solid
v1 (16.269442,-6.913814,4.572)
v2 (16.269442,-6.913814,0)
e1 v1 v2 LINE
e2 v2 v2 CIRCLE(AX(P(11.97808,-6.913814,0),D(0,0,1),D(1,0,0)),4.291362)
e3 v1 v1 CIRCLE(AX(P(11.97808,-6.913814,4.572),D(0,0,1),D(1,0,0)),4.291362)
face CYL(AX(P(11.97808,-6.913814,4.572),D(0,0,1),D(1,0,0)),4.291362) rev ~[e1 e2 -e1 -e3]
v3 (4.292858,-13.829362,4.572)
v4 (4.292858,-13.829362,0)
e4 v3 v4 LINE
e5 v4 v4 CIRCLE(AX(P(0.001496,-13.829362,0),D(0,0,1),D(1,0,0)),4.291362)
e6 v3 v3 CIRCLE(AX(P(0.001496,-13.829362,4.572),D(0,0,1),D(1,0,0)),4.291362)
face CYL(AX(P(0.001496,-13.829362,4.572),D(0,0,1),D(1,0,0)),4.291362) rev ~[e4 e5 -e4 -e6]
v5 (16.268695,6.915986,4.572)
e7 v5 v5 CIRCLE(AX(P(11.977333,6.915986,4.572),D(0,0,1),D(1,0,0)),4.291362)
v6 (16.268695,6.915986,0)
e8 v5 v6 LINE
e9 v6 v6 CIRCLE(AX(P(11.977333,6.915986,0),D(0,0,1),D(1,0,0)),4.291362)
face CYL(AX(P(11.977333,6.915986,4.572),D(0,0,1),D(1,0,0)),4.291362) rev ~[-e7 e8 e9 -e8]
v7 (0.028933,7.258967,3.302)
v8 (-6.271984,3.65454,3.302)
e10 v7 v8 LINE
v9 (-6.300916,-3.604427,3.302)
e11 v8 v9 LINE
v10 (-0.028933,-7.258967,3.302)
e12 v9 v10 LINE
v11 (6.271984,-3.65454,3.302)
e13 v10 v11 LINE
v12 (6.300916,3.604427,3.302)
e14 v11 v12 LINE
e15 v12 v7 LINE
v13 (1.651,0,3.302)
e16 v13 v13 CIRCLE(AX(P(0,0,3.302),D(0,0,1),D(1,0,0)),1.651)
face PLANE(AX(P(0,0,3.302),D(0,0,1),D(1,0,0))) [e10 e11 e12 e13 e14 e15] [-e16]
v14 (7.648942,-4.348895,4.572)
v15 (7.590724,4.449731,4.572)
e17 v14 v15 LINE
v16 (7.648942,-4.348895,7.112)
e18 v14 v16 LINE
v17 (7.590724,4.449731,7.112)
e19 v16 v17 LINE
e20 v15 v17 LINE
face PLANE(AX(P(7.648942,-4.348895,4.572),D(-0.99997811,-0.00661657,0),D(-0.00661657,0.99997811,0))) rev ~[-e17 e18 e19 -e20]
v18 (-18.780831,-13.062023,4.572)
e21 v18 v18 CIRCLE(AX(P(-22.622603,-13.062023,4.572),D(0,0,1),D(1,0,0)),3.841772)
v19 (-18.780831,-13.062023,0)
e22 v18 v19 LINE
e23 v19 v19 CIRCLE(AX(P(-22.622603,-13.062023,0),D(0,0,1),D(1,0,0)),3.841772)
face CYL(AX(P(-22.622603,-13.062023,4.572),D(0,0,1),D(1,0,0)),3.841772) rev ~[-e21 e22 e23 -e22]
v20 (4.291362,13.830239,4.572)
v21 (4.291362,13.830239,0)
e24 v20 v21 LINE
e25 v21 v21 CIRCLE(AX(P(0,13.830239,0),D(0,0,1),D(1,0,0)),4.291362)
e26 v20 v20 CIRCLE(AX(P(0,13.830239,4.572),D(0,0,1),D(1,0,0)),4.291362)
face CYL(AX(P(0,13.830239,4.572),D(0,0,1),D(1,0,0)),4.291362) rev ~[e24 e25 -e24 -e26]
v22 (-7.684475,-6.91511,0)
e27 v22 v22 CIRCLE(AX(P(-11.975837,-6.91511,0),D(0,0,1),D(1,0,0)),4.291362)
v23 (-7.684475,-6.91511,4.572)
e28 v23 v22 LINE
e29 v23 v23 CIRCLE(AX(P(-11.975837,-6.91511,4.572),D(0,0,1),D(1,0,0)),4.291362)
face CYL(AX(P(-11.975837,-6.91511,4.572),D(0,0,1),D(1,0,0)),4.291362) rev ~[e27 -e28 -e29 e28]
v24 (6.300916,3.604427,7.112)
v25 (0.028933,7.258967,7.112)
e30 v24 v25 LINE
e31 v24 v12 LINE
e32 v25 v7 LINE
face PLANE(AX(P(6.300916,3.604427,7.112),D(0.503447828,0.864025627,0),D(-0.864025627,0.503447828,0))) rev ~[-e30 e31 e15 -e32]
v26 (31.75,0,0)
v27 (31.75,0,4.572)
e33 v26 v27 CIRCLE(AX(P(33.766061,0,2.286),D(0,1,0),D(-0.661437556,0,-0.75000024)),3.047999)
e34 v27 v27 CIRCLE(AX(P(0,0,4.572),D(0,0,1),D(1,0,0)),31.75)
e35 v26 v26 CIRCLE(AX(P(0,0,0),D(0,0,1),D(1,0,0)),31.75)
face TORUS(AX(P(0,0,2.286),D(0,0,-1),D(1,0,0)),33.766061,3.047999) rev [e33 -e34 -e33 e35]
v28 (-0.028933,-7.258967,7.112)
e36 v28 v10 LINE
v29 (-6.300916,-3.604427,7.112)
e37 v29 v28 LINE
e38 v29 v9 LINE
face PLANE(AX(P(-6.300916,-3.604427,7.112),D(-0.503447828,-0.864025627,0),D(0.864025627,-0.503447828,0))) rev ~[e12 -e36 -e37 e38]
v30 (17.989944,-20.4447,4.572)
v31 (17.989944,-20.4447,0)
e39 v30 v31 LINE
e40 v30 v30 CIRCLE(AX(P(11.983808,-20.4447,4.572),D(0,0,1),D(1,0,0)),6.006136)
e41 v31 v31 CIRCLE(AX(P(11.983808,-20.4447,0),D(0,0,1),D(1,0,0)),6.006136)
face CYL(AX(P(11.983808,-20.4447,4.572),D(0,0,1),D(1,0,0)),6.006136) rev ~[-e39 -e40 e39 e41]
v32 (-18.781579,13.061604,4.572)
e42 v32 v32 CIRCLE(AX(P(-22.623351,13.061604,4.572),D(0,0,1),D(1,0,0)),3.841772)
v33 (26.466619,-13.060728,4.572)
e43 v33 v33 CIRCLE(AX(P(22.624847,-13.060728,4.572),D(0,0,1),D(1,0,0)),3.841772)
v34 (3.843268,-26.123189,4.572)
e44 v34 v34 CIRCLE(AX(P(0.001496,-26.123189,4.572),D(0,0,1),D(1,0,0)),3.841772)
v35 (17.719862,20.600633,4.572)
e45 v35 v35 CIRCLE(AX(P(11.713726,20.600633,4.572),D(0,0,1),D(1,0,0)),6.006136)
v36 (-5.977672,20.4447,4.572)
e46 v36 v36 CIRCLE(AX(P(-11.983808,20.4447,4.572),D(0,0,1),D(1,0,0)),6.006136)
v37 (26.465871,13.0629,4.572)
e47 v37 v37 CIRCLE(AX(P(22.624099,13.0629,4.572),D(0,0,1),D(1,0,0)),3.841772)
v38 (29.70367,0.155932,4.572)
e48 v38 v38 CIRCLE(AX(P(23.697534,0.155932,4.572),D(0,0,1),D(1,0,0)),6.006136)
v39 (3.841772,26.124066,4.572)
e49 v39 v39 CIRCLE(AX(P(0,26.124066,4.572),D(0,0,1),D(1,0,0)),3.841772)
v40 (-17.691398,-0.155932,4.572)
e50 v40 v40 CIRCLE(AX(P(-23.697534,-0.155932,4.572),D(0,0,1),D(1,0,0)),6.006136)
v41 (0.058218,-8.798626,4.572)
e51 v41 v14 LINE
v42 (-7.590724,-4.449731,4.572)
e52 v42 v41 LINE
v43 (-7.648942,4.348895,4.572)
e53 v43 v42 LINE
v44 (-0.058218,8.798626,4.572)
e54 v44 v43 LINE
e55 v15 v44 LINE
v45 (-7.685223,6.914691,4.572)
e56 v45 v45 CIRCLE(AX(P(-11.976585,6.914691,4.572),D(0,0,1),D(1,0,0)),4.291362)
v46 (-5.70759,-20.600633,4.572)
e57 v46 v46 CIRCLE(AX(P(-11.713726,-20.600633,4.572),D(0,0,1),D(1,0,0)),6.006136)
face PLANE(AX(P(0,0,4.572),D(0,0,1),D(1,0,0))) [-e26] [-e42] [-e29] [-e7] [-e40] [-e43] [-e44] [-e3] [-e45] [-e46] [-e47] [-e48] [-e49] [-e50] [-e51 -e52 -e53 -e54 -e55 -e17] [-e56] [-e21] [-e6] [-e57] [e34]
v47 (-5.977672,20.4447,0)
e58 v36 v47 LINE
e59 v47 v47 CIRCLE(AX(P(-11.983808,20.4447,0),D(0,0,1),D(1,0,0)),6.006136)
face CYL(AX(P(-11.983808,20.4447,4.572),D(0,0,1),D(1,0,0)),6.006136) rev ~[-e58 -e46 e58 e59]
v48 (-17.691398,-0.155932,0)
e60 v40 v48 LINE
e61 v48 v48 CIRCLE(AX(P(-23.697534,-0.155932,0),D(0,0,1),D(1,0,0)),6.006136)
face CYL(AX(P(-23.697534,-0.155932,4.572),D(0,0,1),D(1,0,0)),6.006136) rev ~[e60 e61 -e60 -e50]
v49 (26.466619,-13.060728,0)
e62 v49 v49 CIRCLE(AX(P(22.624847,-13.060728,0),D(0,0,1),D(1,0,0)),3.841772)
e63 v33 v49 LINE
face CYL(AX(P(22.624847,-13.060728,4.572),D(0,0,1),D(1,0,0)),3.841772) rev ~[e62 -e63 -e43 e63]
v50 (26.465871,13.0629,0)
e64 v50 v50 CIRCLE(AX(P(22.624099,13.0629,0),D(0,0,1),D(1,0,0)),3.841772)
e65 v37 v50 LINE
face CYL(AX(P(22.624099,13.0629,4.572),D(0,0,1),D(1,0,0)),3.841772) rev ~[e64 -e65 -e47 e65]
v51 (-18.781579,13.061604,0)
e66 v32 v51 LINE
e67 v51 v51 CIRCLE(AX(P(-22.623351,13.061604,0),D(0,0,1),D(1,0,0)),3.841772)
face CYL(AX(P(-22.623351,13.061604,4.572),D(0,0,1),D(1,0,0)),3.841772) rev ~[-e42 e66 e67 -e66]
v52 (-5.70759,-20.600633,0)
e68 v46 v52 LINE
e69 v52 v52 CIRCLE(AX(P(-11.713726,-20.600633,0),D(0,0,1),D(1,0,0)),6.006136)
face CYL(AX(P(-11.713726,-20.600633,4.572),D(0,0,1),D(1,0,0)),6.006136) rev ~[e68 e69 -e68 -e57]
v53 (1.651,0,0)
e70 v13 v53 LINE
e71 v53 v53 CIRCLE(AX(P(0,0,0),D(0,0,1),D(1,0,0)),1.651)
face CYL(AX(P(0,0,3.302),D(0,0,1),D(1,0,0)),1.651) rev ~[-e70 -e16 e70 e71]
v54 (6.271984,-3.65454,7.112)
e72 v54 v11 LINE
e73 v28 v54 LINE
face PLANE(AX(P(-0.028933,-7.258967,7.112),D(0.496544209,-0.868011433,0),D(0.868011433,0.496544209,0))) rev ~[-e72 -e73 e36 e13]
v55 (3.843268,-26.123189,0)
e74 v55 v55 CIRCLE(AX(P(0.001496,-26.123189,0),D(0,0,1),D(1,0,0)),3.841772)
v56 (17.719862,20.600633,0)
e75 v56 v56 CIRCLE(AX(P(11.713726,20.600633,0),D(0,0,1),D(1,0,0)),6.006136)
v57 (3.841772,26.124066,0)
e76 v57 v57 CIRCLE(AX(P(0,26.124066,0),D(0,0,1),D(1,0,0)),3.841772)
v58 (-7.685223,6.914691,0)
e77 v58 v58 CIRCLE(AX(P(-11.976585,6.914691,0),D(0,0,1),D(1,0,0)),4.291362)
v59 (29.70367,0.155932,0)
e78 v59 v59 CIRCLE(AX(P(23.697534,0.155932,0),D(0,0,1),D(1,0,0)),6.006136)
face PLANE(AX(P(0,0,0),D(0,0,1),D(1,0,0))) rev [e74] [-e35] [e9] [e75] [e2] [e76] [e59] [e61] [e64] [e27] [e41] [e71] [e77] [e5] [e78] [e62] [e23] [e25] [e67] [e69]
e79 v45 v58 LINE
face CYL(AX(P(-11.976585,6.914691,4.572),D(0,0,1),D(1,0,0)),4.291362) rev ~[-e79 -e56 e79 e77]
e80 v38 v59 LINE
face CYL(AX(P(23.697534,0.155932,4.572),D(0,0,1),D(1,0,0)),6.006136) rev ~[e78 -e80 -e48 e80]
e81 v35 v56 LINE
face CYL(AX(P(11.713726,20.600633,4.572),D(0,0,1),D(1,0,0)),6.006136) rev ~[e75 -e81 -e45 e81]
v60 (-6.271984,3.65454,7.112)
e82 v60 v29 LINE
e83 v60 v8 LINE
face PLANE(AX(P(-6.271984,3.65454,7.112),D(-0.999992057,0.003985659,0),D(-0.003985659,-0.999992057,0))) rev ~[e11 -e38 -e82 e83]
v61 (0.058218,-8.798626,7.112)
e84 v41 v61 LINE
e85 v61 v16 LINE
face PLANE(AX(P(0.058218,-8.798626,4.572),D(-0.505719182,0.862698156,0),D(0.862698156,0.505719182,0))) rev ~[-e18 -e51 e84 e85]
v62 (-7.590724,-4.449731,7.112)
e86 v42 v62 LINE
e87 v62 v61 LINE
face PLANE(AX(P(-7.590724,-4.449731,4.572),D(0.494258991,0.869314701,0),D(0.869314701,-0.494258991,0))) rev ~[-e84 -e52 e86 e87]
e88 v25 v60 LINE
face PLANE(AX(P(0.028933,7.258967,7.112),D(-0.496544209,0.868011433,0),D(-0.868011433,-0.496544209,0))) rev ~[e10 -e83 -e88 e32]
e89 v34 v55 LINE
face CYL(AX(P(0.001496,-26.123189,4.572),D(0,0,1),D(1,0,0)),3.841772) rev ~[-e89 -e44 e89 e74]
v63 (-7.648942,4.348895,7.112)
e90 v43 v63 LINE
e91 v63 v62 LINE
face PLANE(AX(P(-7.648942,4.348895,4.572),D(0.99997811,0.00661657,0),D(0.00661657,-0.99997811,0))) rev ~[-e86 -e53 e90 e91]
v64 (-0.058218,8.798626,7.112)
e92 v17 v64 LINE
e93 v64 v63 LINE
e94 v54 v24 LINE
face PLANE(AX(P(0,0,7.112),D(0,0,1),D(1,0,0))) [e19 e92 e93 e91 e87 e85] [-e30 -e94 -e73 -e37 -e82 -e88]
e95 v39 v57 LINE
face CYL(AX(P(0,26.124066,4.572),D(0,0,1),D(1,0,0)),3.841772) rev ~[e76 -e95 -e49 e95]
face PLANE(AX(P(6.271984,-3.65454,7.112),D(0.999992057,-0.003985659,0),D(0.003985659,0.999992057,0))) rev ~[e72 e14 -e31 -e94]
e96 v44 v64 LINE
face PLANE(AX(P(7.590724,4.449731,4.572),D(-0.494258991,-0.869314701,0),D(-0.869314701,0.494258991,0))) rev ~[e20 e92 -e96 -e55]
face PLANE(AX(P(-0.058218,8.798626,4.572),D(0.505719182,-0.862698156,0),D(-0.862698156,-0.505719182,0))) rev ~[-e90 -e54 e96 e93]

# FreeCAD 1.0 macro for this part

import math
import FreeCAD as App
import Part
import Sketcher

V = App.Vector
Q = App.Units.Quantity

doc = App.newDocument("Part")
params = doc.addObject("Spreadsheet::Sheet", "Params")
for row, (alias, value) in enumerate([
    ("sketch1_radius", "0.12 in"),
    ("sketch1_width", "1.25 in"),
    ("sketch1_height", "0.18 in"),
    ("revolution_angle", "360 deg"),
    ("pad1_length", "0.1 in"),
    ("pocket1_length", "1 in"),
    ("pocket2_length", "0.15 in"),
    ("sketch5_diameter", "0.13 in"),
    ("pocket3_length", "1 in"),
], start=1):
    params.set(f"A{row}", alias)
    params.set(f"B{row}", "=" + value)
    params.setAlias(f"B{row}", alias)

body = doc.addObject("PartDesign::Body", "Body")

# Sketch on XZ plane
sketch1 = doc.addObject("Sketcher::SketchObject", "Sketch")
body.addObject(sketch1)
sketch1.AttachmentSupport = (doc.XZ_Plane, [""])
sketch1.MapMode = "FlatFace"
sketch1.addGeometry(Part.LineSegment(V(0, 4.6, 0), V(0, 0, 0)), False)
sketch1.addGeometry(Part.LineSegment(V(0, 0, 0), V(31.8, 0, 0)), False)
sketch1.addGeometry(Part.ArcOfCircle(Part.Circle(V(33.8, 2.3, 0), V(0, 0, 1), 3), math.radians(131), math.radians(229)), False)
sketch1.addGeometry(Part.LineSegment(V(31.8, 4.6, 0), V(0, 4.6, 0)), False)
sketch1.addConstraint(Sketcher.Constraint("Coincident", 0, 2, 1, 1))
sketch1.addConstraint(Sketcher.Constraint("Coincident", 1, 2, 2, 2))
sketch1.addConstraint(Sketcher.Constraint("Coincident", 2, 1, 3, 1))
sketch1.addConstraint(Sketcher.Constraint("Coincident", 3, 2, 0, 1))
sketch1.addConstraint(Sketcher.Constraint("Vertical", 0))
sketch1.addConstraint(Sketcher.Constraint("Horizontal", 1))
sketch1.addConstraint(Sketcher.Constraint("Horizontal", 3))
sketch1.addConstraint(Sketcher.Constraint("Coincident", 0, 2, -1, 1))
sketch1.addConstraint(Sketcher.Constraint("Vertical", 1, 2, 2, 1))
sketch1.addConstraint(Sketcher.Constraint("Radius", 2, Q("0.12 in")))
sketch1.addConstraint(Sketcher.Constraint("DistanceX", 1, 1, 1, 2, Q("1.25 in")))
sketch1.addConstraint(Sketcher.Constraint("DistanceY", 0, 2, 0, 1, Q("0.18 in")))
sketch1.setExpression("Constraints[9]", "Params.sketch1_radius")
sketch1.setExpression("Constraints[10]", "Params.sketch1_width")
sketch1.setExpression("Constraints[11]", "Params.sketch1_height")
revolution = doc.addObject("PartDesign::Revolution", "Revolution")
body.addObject(revolution)
revolution.Profile = sketch1
revolution.ReferenceAxis = (sketch1, ["V_Axis"])
revolution.setExpression("Angle", "Params.revolution_angle")

# Sketch on XY plane
sketch2 = doc.addObject("Sketcher::SketchObject", "Sketch001")
body.addObject(sketch2)
sketch2.AttachmentSupport = (doc.XY_Plane, [""])
sketch2.MapMode = "FlatFace"
sketch2.AttachmentOffset = App.Placement(V(0, 0, 0.18 * 25.4), App.Rotation())
sketch2.addGeometry(Part.LineSegment(V(0, 9, 0), V(-8, 4, 0)), False)
sketch2.addGeometry(Part.LineSegment(V(-8, 4, 0), V(-8, -4, 0)), False)
sketch2.addGeometry(Part.LineSegment(V(-8, -4, 0), V(0, -9, 0)), False)
sketch2.addGeometry(Part.LineSegment(V(0, -9, 0), V(8, -4, 0)), False)
sketch2.addGeometry(Part.LineSegment(V(8, -4, 0), V(8, 4, 0)), False)
sketch2.addGeometry(Part.LineSegment(V(8, 4, 0), V(0, 9, 0)), False)
sketch2.addConstraint(Sketcher.Constraint("Coincident", 0, 2, 1, 1))
sketch2.addConstraint(Sketcher.Constraint("Coincident", 1, 2, 2, 1))
sketch2.addConstraint(Sketcher.Constraint("Coincident", 2, 2, 3, 1))
sketch2.addConstraint(Sketcher.Constraint("Coincident", 3, 2, 4, 1))
sketch2.addConstraint(Sketcher.Constraint("Coincident", 4, 2, 5, 1))
sketch2.addConstraint(Sketcher.Constraint("Coincident", 5, 2, 0, 1))
sketch2.addConstraint(Sketcher.Constraint("Symmetric", 0, 2, 3, 2, -1, 1))
sketch2.addConstraint(Sketcher.Constraint("Symmetric", 1, 2, 4, 2, -1, 1))
sketch2.addConstraint(Sketcher.Constraint("Symmetric", 2, 2, 5, 2, -1, 1))
sketch2.addConstraint(Sketcher.Constraint("Equal", 0, 1))
sketch2.addConstraint(Sketcher.Constraint("Equal", 1, 2))
sketch2.addConstraint(Sketcher.Constraint("Distance", 1, 8.798819))
sketch2.addConstraint(Sketcher.Constraint("DistanceY", 1, 2, -1, 1, 4.449731))
sketch2.addConstraint(Sketcher.Constraint("DistanceX", 0, 2, 1, 2, 0.058218))
sketch2.addConstraint(Sketcher.Constraint("DistanceX", 0, 2, 2, 2, 7.70716))
pad1 = doc.addObject("PartDesign::Pad", "Pad")
body.addObject(pad1)
pad1.Profile = sketch2
pad1.setExpression("Length", "Params.pad1_length")

# Sketch on XY plane
sketch3 = doc.addObject("Sketcher::SketchObject", "Sketch002")
body.addObject(sketch3)
sketch3.AttachmentSupport = (doc.XY_Plane, [""])
sketch3.MapMode = "FlatFace"
sketch3.AttachmentOffset = App.Placement(V(0, 0, 0.18 * 25.4), App.Rotation())
sketch3.addGeometry(Part.Circle(V(-12, 20.4, 0), V(0, 0, 1), 6), False)
sketch3.addGeometry(Part.Circle(V(0, 13.8, 0), V(0, 0, 1), 4.3), False)
sketch3.addGeometry(Part.Circle(V(0, 26.1, 0), V(0, 0, 1), 3.8), False)
sketch3.addGeometry(Part.Circle(V(11.7, 20.6, 0), V(0, 0, 1), 6), False)
sketch3.addGeometry(Part.Circle(V(12, 6.9, 0), V(0, 0, 1), 4.3), False)
sketch3.addGeometry(Part.Circle(V(23.7, 0.2, 0), V(0, 0, 1), 6), False)
sketch3.addGeometry(Part.Circle(V(22.6, -13.1, 0), V(0, 0, 1), 3.8), False)
sketch3.addGeometry(Part.Circle(V(12, -6.9, 0), V(0, 0, 1), 4.3), False)
sketch3.addGeometry(Part.Circle(V(12, -20.4, 0), V(0, 0, 1), 6), False)
sketch3.addGeometry(Part.Circle(V(0, -26.1, 0), V(0, 0, 1), 3.8), False)
sketch3.addGeometry(Part.Circle(V(0, -13.8, 0), V(0, 0, 1), 4.3), False)
sketch3.addGeometry(Part.Circle(V(-11.7, -20.6, 0), V(0, 0, 1), 6), False)
sketch3.addGeometry(Part.Circle(V(-12, -6.9, 0), V(0, 0, 1), 4.3), False)
sketch3.addGeometry(Part.Circle(V(-23.7, -0.2, 0), V(0, 0, 1), 6), False)
sketch3.addGeometry(Part.Circle(V(-22.6, 13.1, 0), V(0, 0, 1), 3.8), False)
sketch3.addGeometry(Part.Circle(V(-12, 6.9, 0), V(0, 0, 1), 4.3), False)
sketch3.addGeometry(Part.Circle(V(-22.6, -13.1, 0), V(0, 0, 1), 3.8), False)
sketch3.addGeometry(Part.Circle(V(22.6, 13.1, 0), V(0, 0, 1), 3.8), False)
sketch3.addConstraint(Sketcher.Constraint("Equal", 0, 3))
sketch3.addConstraint(Sketcher.Constraint("Equal", 1, 4))
sketch3.addConstraint(Sketcher.Constraint("Equal", 3, 5))
sketch3.addConstraint(Sketcher.Constraint("Equal", 2, 6))
sketch3.addConstraint(Sketcher.Constraint("Equal", 4, 7))
sketch3.addConstraint(Sketcher.Constraint("Equal", 5, 8))
sketch3.addConstraint(Sketcher.Constraint("Equal", 6, 9))
sketch3.addConstraint(Sketcher.Constraint("Equal", 7, 10))
sketch3.addConstraint(Sketcher.Constraint("Equal", 8, 11))
sketch3.addConstraint(Sketcher.Constraint("Equal", 10, 12))
sketch3.addConstraint(Sketcher.Constraint("Equal", 11, 13))
sketch3.addConstraint(Sketcher.Constraint("Equal", 9, 14))
sketch3.addConstraint(Sketcher.Constraint("Equal", 12, 15))
sketch3.addConstraint(Sketcher.Constraint("Equal", 14, 16))
sketch3.addConstraint(Sketcher.Constraint("Equal", 16, 17))
sketch3.addConstraint(Sketcher.Constraint("Symmetric", 0, 3, 8, 3, -1, 1))
sketch3.addConstraint(Sketcher.Constraint("Symmetric", 3, 3, 11, 3, -1, 1))
sketch3.addConstraint(Sketcher.Constraint("Symmetric", 5, 3, 13, 3, -1, 1))
sketch3.addConstraint(Sketcher.Constraint("PointOnObject", 1, 3, -2))
sketch3.addConstraint(Sketcher.Constraint("PointOnObject", 2, 3, -2))
sketch3.addConstraint(Sketcher.Constraint("Vertical", 9, 3, 10, 3))
sketch3.addConstraint(Sketcher.Constraint("Diameter", 0, 12.012272))
sketch3.addConstraint(Sketcher.Constraint("Diameter", 1, 8.582724))
sketch3.addConstraint(Sketcher.Constraint("Diameter", 2, 7.683544))
sketch3.addConstraint(Sketcher.Constraint("DistanceY", 11, 3, 12, 3, Q("0.5388001 in")))
sketch3.addConstraint(Sketcher.Constraint("DistanceY", -1, 1, 0, 3, 20.4447))
sketch3.addConstraint(Sketcher.Constraint("DistanceX", -1, 1, 17, 3, 22.624099))
sketch3.addConstraint(Sketcher.Constraint("DistanceY", -1, 1, 17, 3, 13.0629))
sketch3.addConstraint(Sketcher.Constraint("DistanceX", 4, 3, 5, 3, 11.720201))
sketch3.addConstraint(Sketcher.Constraint("DistanceY", 5, 3, 3, 3, 20.444701))
sketch3.addConstraint(Sketcher.Constraint("DistanceY", 7, 3, 4, 3, 13.8298))
sketch3.addConstraint(Sketcher.Constraint("DistanceY", 12, 3, 15, 3, 13.829801))
sketch3.addConstraint(Sketcher.Constraint("DistanceX", 16, 3, 10, 3, 22.624099))
sketch3.addConstraint(Sketcher.Constraint("DistanceY", -1, 1, 1, 3, 13.830239))
sketch3.addConstraint(Sketcher.Constraint("DistanceY", -1, 1, 5, 3, 0.155932))
sketch3.addConstraint(Sketcher.Constraint("DistanceX", -1, 1, 7, 3, 11.97808))
sketch3.addConstraint(Sketcher.Constraint("DistanceY", 9, 3, -1, 1, 26.123189))
sketch3.addConstraint(Sketcher.Constraint("DistanceX", 14, 3, -1, 1, 22.623351))
sketch3.addConstraint(Sketcher.Constraint("DistanceY", 4, 3, 2, 3, 19.20808))
sketch3.addConstraint(Sketcher.Constraint("DistanceX", 0, 3, 4, 3, 23.961141))
sketch3.addConstraint(Sketcher.Constraint("DistanceX", 3, 3, 5, 3, 11.983808))
sketch3.addConstraint(Sketcher.Constraint("DistanceY", 6, 3, 5, 3, 13.21666))
sketch3.addConstraint(Sketcher.Constraint("DistanceX", 3, 3, 6, 3, 10.911121))
sketch3.addConstraint(Sketcher.Constraint("DistanceX", 8, 3, 6, 3, 10.641039))
sketch3.addConstraint(Sketcher.Constraint("DistanceX", 9, 3, 6, 3, 22.623351))
sketch3.addConstraint(Sketcher.Constraint("DistanceY", 8, 3, 10, 3, 6.615338))
sketch3.addConstraint(Sketcher.Constraint("DistanceY", 10, 3, 4, 3, 20.745348))
sketch3.addConstraint(Sketcher.Constraint("DistanceX", 12, 3, 11, 3, 0.262111))
sketch3.addConstraint(Sketcher.Constraint("DistanceY", 14, 3, 2, 3, 13.062462))
sketch3.addConstraint(Sketcher.Constraint("DistanceX", 13, 3, 15, 3, 11.720949))
sketch3.addConstraint(Sketcher.Constraint("DistanceY", 16, 3, 13, 3, 12.906091))
pocket1 = doc.addObject("PartDesign::Pocket", "Pocket")
body.addObject(pocket1)
pocket1.Profile = sketch3
pocket1.setExpression("Length", "Params.pocket1_length")

# Sketch on XY plane
sketch4 = doc.addObject("Sketcher::SketchObject", "Sketch003")
body.addObject(sketch4)
sketch4.AttachmentSupport = (doc.XY_Plane, [""])
sketch4.MapMode = "FlatFace"
sketch4.AttachmentOffset = App.Placement(V(0, 0, 0.28 * 25.4), App.Rotation())
sketch4.addGeometry(Part.LineSegment(V(6, 4, 0), V(0, 7, 0)), False)
sketch4.addGeometry(Part.LineSegment(V(0, 7, 0), V(-6, 4, 0)), False)
sketch4.addGeometry(Part.LineSegment(V(-6, 4, 0), V(-6, -4, 0)), False)
sketch4.addGeometry(Part.LineSegment(V(-6, -4, 0), V(0, -7, 0)), False)
sketch4.addGeometry(Part.LineSegment(V(0, -7, 0), V(6, -4, 0)), False)
sketch4.addGeometry(Part.LineSegment(V(6, -4, 0), V(6, 4, 0)), False)
sketch4.addConstraint(Sketcher.Constraint("Coincident", 0, 2, 1, 1))
sketch4.addConstraint(Sketcher.Constraint("Coincident", 1, 2, 2, 1))
sketch4.addConstraint(Sketcher.Constraint("Coincident", 2, 2, 3, 1))
sketch4.addConstraint(Sketcher.Constraint("Coincident", 3, 2, 4, 1))
sketch4.addConstraint(Sketcher.Constraint("Coincident", 4, 2, 5, 1))
sketch4.addConstraint(Sketcher.Constraint("Coincident", 5, 2, 0, 1))
sketch4.addConstraint(Sketcher.Constraint("Symmetric", 0, 2, 3, 2, -1, 1))
sketch4.addConstraint(Sketcher.Constraint("Symmetric", 1, 2, 4, 2, -1, 1))
sketch4.addConstraint(Sketcher.Constraint("Symmetric", 2, 2, 5, 2, -1, 1))
sketch4.addConstraint(Sketcher.Constraint("Equal", 0, 1))
sketch4.addConstraint(Sketcher.Constraint("Equal", 1, 2))
sketch4.addConstraint(Sketcher.Constraint("DistanceX", 2, 2, 4, 2, 12.5729))
sketch4.addConstraint(Sketcher.Constraint("DistanceY", -1, 1, 1, 2, 3.65454))
sketch4.addConstraint(Sketcher.Constraint("DistanceX", 2, 2, 0, 2, 6.329849))
sketch4.addConstraint(Sketcher.Constraint("DistanceY", 3, 2, 2, 2, 3.65454))
pocket2 = doc.addObject("PartDesign::Pocket", "Pocket001")
body.addObject(pocket2)
pocket2.Profile = sketch4
pocket2.setExpression("Length", "Params.pocket2_length")

# Sketch on XY plane
sketch5 = doc.addObject("Sketcher::SketchObject", "Sketch004")
body.addObject(sketch5)
sketch5.AttachmentSupport = (doc.XY_Plane, [""])
sketch5.MapMode = "FlatFace"
sketch5.AttachmentOffset = App.Placement(V(0, 0, 0.13 * 25.4), App.Rotation())
sketch5.addGeometry(Part.Circle(V(0, 0, 0), V(0, 0, 1), 1.7), False)
sketch5.addConstraint(Sketcher.Constraint("Coincident", 0, 3, -1, 1))
sketch5.addConstraint(Sketcher.Constraint("Diameter", 0, Q("0.13 in")))
sketch5.setExpression("Constraints[1]", "Params.sketch5_diameter")
pocket3 = doc.addObject("PartDesign::Pocket", "Pocket002")
body.addObject(pocket3)
pocket3.Profile = sketch5
pocket3.setExpression("Length", "Params.pocket3_length")

doc.recompute()
